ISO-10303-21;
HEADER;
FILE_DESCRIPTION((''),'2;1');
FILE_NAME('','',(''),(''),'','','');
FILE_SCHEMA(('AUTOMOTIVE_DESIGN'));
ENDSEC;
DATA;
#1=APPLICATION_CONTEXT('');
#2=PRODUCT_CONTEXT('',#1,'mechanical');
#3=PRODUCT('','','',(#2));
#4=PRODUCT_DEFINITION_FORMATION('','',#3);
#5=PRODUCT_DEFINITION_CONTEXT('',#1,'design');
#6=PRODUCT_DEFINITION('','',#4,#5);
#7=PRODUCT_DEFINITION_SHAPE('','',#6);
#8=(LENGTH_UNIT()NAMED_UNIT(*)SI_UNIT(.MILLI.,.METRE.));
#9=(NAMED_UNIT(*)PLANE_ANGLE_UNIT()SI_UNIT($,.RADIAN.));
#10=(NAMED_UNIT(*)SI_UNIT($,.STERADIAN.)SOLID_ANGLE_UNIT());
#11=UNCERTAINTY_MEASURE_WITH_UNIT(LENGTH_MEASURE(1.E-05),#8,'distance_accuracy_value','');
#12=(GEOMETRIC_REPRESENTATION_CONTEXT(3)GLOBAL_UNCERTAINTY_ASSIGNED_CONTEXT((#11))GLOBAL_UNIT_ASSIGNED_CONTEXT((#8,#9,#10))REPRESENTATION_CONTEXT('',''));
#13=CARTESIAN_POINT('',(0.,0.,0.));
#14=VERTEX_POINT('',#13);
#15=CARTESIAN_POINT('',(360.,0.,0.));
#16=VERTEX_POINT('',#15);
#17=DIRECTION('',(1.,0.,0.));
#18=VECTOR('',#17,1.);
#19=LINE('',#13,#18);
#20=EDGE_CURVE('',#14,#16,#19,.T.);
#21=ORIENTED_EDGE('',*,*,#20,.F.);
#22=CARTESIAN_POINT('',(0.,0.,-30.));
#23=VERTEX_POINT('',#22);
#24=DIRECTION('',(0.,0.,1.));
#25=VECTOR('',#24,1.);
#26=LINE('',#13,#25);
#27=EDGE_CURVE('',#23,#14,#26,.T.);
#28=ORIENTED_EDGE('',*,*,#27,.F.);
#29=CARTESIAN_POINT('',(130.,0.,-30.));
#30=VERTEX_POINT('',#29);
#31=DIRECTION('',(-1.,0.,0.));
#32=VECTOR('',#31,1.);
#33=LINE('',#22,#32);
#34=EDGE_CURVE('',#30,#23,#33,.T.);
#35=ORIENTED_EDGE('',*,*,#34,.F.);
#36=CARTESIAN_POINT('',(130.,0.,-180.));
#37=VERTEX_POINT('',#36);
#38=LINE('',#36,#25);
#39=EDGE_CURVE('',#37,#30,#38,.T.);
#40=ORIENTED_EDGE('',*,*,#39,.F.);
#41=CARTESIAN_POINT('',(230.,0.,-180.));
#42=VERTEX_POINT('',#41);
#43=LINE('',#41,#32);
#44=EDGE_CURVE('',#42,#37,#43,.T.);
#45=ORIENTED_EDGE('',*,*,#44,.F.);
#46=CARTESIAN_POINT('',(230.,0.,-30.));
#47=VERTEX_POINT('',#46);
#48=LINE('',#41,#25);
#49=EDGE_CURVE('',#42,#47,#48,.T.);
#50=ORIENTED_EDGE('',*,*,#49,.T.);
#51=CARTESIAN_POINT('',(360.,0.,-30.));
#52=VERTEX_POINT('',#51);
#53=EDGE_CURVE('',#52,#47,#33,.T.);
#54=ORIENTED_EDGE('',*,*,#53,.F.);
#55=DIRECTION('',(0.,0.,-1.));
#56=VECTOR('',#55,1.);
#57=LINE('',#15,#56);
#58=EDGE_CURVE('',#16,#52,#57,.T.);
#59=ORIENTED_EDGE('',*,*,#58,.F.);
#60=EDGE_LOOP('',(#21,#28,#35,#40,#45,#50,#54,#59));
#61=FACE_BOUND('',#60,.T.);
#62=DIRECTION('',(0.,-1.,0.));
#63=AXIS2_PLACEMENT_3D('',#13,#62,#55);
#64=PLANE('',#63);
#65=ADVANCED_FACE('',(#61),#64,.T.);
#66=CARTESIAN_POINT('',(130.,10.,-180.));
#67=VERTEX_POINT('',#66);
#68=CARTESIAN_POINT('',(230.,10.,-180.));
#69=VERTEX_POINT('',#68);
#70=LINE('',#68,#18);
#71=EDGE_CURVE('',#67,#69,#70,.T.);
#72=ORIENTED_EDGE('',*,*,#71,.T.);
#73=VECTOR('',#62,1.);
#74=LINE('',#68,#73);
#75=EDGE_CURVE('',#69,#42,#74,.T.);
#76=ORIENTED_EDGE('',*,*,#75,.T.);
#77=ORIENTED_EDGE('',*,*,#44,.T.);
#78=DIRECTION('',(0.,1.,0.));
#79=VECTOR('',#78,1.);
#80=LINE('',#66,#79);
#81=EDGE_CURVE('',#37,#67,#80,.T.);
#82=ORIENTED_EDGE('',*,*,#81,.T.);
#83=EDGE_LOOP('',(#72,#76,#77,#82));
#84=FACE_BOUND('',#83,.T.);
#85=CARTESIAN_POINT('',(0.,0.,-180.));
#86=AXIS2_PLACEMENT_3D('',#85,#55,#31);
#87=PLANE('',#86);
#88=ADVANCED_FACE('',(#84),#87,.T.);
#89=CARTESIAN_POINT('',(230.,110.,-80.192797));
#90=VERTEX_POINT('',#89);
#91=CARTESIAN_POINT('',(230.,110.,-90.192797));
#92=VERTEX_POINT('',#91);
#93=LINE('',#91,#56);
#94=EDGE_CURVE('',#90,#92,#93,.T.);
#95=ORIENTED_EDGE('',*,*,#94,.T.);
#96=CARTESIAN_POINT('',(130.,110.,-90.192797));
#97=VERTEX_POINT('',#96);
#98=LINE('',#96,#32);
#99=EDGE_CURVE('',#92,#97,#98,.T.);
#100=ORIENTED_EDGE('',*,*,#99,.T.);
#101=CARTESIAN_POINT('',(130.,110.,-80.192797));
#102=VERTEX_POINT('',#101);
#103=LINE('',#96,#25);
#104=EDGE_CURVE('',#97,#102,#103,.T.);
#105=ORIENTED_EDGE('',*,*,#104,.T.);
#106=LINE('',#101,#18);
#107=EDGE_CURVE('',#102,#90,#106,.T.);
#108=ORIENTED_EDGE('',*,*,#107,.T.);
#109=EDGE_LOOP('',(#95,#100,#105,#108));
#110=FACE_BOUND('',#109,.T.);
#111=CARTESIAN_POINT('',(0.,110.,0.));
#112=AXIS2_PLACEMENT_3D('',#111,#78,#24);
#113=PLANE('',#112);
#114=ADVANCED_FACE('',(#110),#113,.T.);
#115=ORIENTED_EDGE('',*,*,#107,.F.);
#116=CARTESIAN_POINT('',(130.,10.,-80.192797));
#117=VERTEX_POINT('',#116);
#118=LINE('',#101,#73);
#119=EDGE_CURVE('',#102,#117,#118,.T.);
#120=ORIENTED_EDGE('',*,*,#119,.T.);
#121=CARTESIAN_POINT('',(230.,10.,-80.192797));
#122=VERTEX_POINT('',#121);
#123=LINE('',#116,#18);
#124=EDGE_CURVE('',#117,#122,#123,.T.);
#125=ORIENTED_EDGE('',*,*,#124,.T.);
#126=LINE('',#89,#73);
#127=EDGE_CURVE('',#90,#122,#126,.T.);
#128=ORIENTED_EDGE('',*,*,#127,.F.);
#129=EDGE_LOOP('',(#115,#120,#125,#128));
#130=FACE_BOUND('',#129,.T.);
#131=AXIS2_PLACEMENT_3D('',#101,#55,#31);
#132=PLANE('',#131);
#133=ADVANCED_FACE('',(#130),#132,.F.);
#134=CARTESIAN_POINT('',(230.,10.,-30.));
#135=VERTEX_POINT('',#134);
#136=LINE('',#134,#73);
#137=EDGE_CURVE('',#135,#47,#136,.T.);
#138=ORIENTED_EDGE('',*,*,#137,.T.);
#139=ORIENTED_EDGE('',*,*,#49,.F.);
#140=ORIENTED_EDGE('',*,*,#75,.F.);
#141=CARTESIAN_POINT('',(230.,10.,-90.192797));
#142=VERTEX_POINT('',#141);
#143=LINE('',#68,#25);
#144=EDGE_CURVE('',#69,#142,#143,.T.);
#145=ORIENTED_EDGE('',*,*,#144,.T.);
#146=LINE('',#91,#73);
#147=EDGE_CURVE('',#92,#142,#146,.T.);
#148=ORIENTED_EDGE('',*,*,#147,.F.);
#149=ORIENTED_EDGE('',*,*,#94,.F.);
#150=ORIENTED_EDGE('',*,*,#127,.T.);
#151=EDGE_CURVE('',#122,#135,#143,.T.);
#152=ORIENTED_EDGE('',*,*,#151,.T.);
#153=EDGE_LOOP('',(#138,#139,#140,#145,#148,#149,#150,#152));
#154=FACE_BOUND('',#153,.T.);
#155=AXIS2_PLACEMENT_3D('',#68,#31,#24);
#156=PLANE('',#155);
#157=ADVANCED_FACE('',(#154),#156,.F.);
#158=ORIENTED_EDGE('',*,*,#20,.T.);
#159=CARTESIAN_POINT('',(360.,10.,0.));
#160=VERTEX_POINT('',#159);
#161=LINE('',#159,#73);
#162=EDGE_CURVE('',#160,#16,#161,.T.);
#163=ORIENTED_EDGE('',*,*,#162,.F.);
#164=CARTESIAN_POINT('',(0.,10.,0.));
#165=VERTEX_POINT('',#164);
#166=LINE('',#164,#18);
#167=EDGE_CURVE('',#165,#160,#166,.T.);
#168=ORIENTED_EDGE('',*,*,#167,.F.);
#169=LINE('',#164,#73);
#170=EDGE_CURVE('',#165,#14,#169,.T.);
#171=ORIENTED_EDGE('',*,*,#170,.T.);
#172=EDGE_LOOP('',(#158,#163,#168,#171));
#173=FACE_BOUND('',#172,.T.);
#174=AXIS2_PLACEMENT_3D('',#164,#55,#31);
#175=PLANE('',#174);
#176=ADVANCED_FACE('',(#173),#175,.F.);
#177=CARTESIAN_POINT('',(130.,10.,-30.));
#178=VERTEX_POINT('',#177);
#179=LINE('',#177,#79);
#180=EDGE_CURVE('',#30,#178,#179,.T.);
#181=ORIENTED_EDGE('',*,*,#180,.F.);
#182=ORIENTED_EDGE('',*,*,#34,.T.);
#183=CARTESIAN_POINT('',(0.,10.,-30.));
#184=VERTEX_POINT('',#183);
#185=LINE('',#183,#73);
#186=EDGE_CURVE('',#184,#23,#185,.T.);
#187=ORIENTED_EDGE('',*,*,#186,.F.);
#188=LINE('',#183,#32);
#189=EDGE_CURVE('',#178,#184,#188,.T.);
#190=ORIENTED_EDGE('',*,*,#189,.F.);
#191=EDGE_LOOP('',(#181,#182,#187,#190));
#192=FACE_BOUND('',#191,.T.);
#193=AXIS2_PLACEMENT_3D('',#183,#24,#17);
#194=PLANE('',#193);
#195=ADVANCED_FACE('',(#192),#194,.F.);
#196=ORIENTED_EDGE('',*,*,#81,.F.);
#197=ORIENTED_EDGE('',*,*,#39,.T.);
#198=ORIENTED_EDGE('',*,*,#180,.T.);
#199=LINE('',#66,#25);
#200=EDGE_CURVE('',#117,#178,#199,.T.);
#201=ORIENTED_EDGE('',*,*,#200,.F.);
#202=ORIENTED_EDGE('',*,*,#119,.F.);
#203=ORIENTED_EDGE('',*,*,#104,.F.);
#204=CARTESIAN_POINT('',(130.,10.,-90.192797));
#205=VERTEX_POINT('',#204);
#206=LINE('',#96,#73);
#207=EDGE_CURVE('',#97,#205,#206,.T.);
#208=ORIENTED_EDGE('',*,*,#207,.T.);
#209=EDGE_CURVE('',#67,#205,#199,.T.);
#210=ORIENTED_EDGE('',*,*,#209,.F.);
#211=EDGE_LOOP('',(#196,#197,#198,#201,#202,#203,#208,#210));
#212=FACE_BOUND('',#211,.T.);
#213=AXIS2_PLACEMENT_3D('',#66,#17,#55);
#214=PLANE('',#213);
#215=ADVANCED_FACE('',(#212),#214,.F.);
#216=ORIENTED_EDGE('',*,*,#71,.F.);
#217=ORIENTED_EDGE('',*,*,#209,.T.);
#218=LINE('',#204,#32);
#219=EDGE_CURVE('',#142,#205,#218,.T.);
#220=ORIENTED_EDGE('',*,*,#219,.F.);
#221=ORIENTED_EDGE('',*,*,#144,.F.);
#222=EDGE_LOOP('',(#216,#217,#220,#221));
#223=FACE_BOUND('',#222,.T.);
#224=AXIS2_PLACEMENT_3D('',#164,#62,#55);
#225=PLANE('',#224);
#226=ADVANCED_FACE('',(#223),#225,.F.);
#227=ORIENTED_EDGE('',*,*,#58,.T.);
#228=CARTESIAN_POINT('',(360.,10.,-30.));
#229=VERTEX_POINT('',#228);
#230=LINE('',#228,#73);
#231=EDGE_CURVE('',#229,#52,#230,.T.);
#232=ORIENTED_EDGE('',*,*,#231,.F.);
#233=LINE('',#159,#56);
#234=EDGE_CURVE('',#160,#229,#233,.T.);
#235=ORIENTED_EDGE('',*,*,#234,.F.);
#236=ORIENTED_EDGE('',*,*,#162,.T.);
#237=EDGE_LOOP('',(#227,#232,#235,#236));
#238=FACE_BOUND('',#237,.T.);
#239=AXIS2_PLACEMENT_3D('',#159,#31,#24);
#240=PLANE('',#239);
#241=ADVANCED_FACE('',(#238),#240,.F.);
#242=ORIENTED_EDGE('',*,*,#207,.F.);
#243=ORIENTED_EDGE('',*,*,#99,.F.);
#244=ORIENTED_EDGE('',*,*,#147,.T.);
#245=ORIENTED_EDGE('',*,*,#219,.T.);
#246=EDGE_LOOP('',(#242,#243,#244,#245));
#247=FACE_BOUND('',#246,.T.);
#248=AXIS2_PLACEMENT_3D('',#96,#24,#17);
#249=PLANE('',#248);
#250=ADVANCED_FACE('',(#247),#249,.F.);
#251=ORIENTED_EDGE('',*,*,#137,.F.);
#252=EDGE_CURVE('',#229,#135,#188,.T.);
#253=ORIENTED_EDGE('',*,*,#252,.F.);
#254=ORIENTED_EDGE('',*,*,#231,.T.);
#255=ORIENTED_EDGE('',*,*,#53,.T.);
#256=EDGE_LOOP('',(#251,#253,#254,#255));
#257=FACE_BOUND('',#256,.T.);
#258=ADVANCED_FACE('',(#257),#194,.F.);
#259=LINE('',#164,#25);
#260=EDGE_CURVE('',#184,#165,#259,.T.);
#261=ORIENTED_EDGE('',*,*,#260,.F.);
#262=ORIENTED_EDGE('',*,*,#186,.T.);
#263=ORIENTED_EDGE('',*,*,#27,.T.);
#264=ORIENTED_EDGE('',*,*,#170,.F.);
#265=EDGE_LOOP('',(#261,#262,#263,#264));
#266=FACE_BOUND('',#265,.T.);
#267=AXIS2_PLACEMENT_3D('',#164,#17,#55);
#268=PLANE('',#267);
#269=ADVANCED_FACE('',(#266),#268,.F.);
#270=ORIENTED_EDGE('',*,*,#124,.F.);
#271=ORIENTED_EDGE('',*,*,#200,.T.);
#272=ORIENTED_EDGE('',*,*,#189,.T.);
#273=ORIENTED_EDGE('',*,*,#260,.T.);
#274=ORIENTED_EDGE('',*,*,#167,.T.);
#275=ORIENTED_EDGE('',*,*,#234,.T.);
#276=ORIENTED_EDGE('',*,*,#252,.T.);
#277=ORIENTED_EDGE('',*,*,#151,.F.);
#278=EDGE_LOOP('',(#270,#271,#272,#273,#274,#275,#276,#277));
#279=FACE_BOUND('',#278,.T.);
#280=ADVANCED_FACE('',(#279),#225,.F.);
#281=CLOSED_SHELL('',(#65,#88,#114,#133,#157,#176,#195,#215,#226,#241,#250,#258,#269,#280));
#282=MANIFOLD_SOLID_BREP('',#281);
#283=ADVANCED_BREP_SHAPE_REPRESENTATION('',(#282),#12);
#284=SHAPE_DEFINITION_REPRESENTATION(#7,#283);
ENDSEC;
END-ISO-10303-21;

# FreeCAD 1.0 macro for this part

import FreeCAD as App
import Part
import Sketcher
Q = App.Units.Quantity


def add_polygon(sketch, points):
    """Adds a closed chain of lines whose ends are joined by coincident constraints."""
    first, n = sketch.GeometryCount, len(points)
    for a, b in zip(points, points[1:] + points[:1]):
        sketch.addGeometry(Part.LineSegment(App.Vector(*a, 0), App.Vector(*b, 0)), False)
    for i in range(n):
        sketch.addConstraint(Sketcher.Constraint("Coincident", first + i, 2, first + (i + 1) % n, 1))

doc = App.newDocument("Part")
body = doc.addObject("PartDesign::Body", "Body")

sketch1 = body.newObject("Sketcher::SketchObject", "Sketch")
sketch1.AttachmentSupport = (doc.getObject("XZ_Plane"), [""])
sketch1.MapMode = "FlatFace"
add_polygon(sketch1, [(0, -30), (0, 0), (360, 0), (360, -30)])
sketch1.addConstraint(Sketcher.Constraint("Vertical", 0))
sketch1.addConstraint(Sketcher.Constraint("Horizontal", 1))
sketch1.addConstraint(Sketcher.Constraint("Vertical", 2))
sketch1.addConstraint(Sketcher.Constraint("Horizontal", 3))
sketch1.addConstraint(Sketcher.Constraint("Coincident", 0, 2, -1, 1))
sketch1.addConstraint(Sketcher.Constraint("DistanceX", 1, 1, 1, 2, Q("360 mm")))
sketch1.addConstraint(Sketcher.Constraint("DistanceY", 0, 1, 0, 2, Q("30 mm")))
pad1 = body.newObject("PartDesign::Pad", "Pad")
pad1.Profile = sketch1
pad1.Length = 10
pad1.Reversed = True

sketch2 = body.newObject("Sketcher::SketchObject", "Sketch001")
sketch2.AttachmentSupport = (doc.getObject("XY_Plane"), [""])
sketch2.MapMode = "FlatFace"
sketch2.AttachmentOffset = App.Placement(App.Vector(0, 0, -30), App.Rotation())
add_polygon(sketch2, [(230, 10), (230, 0), (130, 0), (130, 10)])
sketch2.addConstraint(Sketcher.Constraint("Vertical", 0))
sketch2.addConstraint(Sketcher.Constraint("Horizontal", 1))
sketch2.addConstraint(Sketcher.Constraint("Vertical", 2))
sketch2.addConstraint(Sketcher.Constraint("Horizontal", 3))
sketch2.addConstraint(Sketcher.Constraint("PointOnObject", 0, 2, -1))
sketch2.addConstraint(Sketcher.Constraint("DistanceX", 1, 2, 1, 1, Q("100 mm")))
sketch2.addConstraint(Sketcher.Constraint("DistanceY", 0, 2, 0, 1, Q("10 mm")))
sketch2.addConstraint(Sketcher.Constraint("DistanceX", -1, 1, 0, 2, Q("230 mm")))
pad2 = body.newObject("PartDesign::Pad", "Pad001")
pad2.Profile = sketch2
pad2.Length = 150
pad2.Reversed = True

sketch3 = body.newObject("Sketcher::SketchObject", "Sketch002")
sketch3.AttachmentSupport = (doc.getObject("XZ_Plane"), [""])
sketch3.MapMode = "FlatFace"
sketch3.AttachmentOffset = App.Placement(App.Vector(0, 0, -10), App.Rotation())
add_polygon(sketch3, [(130, -90.192797), (130, -80.192797), (230, -80.192797), (230, -90.192797)])
sketch3.addConstraint(Sketcher.Constraint("Vertical", 0))
sketch3.addConstraint(Sketcher.Constraint("Horizontal", 1))
sketch3.addConstraint(Sketcher.Constraint("Vertical", 2))
sketch3.addConstraint(Sketcher.Constraint("Horizontal", 3))
sketch3.addConstraint(Sketcher.Constraint("DistanceX", 1, 1, 1, 2, Q("100 mm")))
sketch3.addConstraint(Sketcher.Constraint("DistanceY", 0, 1, 0, 2, Q("10 mm")))
sketch3.addConstraint(Sketcher.Constraint("DistanceX", -1, 1, 0, 2, Q("130 mm")))
sketch3.addConstraint(Sketcher.Constraint("DistanceY", 0, 2, -1, 1, Q("80.192797 mm")))
pad3 = body.newObject("PartDesign::Pad", "Pad002")
pad3.Profile = sketch3
pad3.Length = 100
pad3.Reversed = True

doc.recompute()
